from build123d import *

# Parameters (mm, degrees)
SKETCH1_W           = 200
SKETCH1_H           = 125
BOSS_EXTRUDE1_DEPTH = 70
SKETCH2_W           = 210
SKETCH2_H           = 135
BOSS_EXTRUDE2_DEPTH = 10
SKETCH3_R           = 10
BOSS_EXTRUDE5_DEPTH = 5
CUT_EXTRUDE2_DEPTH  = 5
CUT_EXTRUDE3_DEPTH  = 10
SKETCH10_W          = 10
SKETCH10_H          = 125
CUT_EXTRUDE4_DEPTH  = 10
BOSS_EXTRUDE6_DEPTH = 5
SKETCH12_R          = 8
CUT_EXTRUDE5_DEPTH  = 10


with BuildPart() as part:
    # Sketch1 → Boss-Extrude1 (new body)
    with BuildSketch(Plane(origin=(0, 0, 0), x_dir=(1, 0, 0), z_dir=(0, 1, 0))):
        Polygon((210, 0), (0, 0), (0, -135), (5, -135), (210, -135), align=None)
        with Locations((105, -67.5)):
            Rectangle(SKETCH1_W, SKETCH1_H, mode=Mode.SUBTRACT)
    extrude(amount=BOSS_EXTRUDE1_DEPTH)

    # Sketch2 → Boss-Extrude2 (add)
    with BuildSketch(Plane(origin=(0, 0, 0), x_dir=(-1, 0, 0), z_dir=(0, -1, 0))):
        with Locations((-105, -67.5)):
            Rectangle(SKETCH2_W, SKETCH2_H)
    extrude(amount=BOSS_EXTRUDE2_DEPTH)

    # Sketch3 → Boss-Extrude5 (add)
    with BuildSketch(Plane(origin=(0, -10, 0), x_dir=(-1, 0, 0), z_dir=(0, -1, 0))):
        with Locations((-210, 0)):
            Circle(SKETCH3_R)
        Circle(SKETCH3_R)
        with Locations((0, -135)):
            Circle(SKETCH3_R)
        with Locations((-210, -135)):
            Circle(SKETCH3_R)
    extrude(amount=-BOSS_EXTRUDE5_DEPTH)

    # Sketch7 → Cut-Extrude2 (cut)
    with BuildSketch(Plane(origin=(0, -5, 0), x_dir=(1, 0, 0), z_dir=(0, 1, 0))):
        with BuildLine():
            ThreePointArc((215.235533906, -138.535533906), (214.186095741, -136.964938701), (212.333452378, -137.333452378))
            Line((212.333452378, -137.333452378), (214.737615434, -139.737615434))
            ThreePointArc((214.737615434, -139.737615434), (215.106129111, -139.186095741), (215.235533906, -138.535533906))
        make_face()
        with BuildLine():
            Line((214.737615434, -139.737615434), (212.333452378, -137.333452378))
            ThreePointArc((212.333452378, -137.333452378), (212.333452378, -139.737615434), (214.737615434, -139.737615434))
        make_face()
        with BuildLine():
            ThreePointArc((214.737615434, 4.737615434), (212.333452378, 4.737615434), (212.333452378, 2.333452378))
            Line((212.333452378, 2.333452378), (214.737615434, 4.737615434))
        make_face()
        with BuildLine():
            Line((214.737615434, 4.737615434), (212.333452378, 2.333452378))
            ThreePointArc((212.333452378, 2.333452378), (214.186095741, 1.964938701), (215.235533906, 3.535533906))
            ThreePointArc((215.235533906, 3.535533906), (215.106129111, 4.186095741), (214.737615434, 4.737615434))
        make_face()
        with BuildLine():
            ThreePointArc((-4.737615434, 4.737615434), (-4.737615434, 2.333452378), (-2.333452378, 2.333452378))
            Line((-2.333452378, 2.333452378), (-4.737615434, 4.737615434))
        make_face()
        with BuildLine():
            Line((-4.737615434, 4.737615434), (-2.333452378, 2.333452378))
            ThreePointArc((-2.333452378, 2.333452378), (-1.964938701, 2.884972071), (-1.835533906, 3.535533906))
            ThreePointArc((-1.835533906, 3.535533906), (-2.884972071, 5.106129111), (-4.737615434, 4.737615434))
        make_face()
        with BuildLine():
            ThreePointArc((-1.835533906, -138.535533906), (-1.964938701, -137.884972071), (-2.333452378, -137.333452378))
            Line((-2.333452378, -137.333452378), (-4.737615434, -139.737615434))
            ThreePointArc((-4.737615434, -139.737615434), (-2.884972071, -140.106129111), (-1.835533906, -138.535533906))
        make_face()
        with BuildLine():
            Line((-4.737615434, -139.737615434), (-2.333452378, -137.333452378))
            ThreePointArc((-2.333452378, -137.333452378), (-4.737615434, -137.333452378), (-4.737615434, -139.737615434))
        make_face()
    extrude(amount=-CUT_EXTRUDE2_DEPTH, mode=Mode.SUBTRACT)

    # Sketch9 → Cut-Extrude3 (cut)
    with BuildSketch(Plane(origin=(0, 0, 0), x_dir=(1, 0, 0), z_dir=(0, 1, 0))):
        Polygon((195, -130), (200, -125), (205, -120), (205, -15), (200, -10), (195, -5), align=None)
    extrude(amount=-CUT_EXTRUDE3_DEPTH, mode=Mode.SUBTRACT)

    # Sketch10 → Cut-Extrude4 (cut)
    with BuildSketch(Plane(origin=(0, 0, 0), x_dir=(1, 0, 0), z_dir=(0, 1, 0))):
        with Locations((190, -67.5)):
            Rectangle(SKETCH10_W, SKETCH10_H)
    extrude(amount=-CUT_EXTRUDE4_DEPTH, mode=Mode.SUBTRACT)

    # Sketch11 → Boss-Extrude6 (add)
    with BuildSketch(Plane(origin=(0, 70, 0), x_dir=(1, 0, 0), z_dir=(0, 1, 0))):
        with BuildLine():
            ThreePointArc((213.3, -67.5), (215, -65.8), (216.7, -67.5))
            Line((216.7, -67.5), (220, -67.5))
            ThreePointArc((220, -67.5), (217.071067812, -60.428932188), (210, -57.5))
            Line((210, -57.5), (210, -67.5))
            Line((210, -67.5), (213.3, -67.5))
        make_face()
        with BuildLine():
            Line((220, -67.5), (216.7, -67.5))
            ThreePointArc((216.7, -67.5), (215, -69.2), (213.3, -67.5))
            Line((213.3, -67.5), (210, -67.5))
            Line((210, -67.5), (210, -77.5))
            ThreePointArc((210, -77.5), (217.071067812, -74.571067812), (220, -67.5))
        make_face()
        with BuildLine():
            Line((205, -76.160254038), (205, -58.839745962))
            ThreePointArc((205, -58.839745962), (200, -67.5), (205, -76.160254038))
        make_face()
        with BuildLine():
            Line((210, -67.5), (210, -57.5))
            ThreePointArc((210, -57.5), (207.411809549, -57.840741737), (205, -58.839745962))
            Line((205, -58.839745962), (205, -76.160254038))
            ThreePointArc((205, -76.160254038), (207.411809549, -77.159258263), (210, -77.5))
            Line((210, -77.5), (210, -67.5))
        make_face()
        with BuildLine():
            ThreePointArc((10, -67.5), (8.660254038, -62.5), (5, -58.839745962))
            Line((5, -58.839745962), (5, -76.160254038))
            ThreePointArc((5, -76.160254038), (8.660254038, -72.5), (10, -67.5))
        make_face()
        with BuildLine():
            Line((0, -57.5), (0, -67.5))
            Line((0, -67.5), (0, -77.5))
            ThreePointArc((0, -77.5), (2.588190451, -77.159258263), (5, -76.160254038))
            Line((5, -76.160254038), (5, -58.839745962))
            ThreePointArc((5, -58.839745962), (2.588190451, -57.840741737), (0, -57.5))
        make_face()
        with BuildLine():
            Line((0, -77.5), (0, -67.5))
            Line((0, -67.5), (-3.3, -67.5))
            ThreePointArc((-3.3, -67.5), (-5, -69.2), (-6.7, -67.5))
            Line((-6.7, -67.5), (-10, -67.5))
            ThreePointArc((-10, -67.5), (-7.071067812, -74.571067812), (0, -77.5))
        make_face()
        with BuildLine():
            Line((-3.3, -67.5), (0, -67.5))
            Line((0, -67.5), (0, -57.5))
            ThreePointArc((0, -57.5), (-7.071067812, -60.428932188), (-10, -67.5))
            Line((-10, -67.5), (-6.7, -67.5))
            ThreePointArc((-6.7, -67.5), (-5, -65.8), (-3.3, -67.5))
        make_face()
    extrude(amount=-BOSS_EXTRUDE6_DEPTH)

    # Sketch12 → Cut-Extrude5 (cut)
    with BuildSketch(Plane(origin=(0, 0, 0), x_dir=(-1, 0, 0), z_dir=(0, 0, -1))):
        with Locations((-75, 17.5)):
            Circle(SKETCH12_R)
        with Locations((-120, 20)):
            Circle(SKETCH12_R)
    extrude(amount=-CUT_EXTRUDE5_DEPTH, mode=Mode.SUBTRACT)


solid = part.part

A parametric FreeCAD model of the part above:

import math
import FreeCAD as App
import Part
import Sketcher
Q = App.Units.Quantity


def add_polygon(sketch, points):
    """Adds a closed chain of lines whose ends are joined by coincident constraints."""
    first, n = sketch.GeometryCount, len(points)
    for a, b in zip(points, points[1:] + points[:1]):
        sketch.addGeometry(Part.LineSegment(App.Vector(*a, 0), App.Vector(*b, 0)), False)
    for i in range(n):
        sketch.addConstraint(Sketcher.Constraint("Coincident", first + i, 2, first + (i + 1) % n, 1))

doc = App.newDocument("Part")
body = doc.addObject("PartDesign::Body", "Body")

# Sketch on XZ plane
sketch1 = doc.addObject("Sketcher::SketchObject", "Sketch")
body.addObject(sketch1)
sketch1.AttachmentSupport = (doc.XZ_Plane, [""])
sketch1.MapMode = "FlatFace"
add_polygon(sketch1, [(210, 0), (0, 0), (0, 135), (210, 135)])  # lines 0-3
add_polygon(sketch1, [(205, 130), (5, 130), (5, 5), (205, 5)])  # lines 4-7
sketch1.addConstraint(Sketcher.Constraint("Horizontal", 0))
sketch1.addConstraint(Sketcher.Constraint("Vertical", 1))
sketch1.addConstraint(Sketcher.Constraint("Horizontal", 2))
sketch1.addConstraint(Sketcher.Constraint("Vertical", 3))
sketch1.addConstraint(Sketcher.Constraint("Horizontal", 4))
sketch1.addConstraint(Sketcher.Constraint("Vertical", 5))
sketch1.addConstraint(Sketcher.Constraint("Horizontal", 6))
sketch1.addConstraint(Sketcher.Constraint("Vertical", 7))
sketch1.addConstraint(Sketcher.Constraint("Coincident", 0, 2, -1, 1))
sketch1.addConstraint(Sketcher.Constraint("DistanceX", 0, 2, 0, 1, Q("210 mm")))
sketch1.addConstraint(Sketcher.Constraint("DistanceX", 4, 2, 4, 1, Q("200 mm")))
sketch1.addConstraint(Sketcher.Constraint("DistanceY", 1, 1, 1, 2, Q("135 mm")))
sketch1.addConstraint(Sketcher.Constraint("DistanceY", 5, 2, 5, 1, Q("125 mm")))
sketch1.addConstraint(Sketcher.Constraint("DistanceX", -1, 1, 4, 2, Q("5 mm")))
sketch1.addConstraint(Sketcher.Constraint("DistanceY", -1, 1, 4, 2, Q("130 mm")))
pad1 = doc.addObject("PartDesign::Pad", "Pad")
body.addObject(pad1)
pad1.Profile = sketch1
pad1.Length = 70
pad1.Reversed = True

# Sketch on XZ plane
sketch2 = doc.addObject("Sketcher::SketchObject", "Sketch001")
body.addObject(sketch2)
sketch2.AttachmentSupport = (doc.XZ_Plane, [""])
sketch2.MapMode = "FlatFace"
add_polygon(sketch2, [(210, 0), (210, 135), (0, 135), (0, 0)])  # lines 0-3
sketch2.addConstraint(Sketcher.Constraint("Vertical", 0))
sketch2.addConstraint(Sketcher.Constraint("Horizontal", 1))
sketch2.addConstraint(Sketcher.Constraint("Vertical", 2))
sketch2.addConstraint(Sketcher.Constraint("Horizontal", 3))
sketch2.addConstraint(Sketcher.Constraint("Coincident", 2, 2, -1, 1))
sketch2.addConstraint(Sketcher.Constraint("DistanceX", 1, 2, 1, 1, Q("210 mm")))
sketch2.addConstraint(Sketcher.Constraint("DistanceY", 0, 1, 0, 2, Q("135 mm")))
pad2 = doc.addObject("PartDesign::Pad", "Pad001")
body.addObject(pad2)
pad2.Profile = sketch2
pad2.Length = 10

# Sketch on XZ plane
sketch3 = doc.addObject("Sketcher::SketchObject", "Sketch002")
body.addObject(sketch3)
sketch3.AttachmentSupport = (doc.XZ_Plane, [""])
sketch3.MapMode = "FlatFace"
sketch3.AttachmentOffset = App.Placement(App.Vector(0, 0, 10), App.Rotation())
sketch3.addGeometry(Part.Circle(App.Vector(210, 0, 0), App.Vector(0, 0, 1), 10), False)
sketch3.addGeometry(Part.Circle(App.Vector(0, 0, 0), App.Vector(0, 0, 1), 10), False)
sketch3.addGeometry(Part.Circle(App.Vector(0, 135, 0), App.Vector(0, 0, 1), 10), False)
sketch3.addGeometry(Part.Circle(App.Vector(210, 135, 0), App.Vector(0, 0, 1), 10), False)
sketch3.addConstraint(Sketcher.Constraint("Coincident", 1, 3, -1, 1))
sketch3.addConstraint(Sketcher.Constraint("Equal", 0, 1))
sketch3.addConstraint(Sketcher.Constraint("Equal", 1, 2))
sketch3.addConstraint(Sketcher.Constraint("Equal", 2, 3))
sketch3.addConstraint(Sketcher.Constraint("PointOnObject", 0, 3, -1))
sketch3.addConstraint(Sketcher.Constraint("PointOnObject", 2, 3, -2))
sketch3.addConstraint(Sketcher.Constraint("Horizontal", 2, 3, 3, 3))
sketch3.addConstraint(Sketcher.Constraint("Vertical", 0, 3, 3, 3))
sketch3.addConstraint(Sketcher.Constraint("Diameter", 0, Q("20 mm")))
sketch3.addConstraint(Sketcher.Constraint("DistanceX", -1, 1, 0, 3, Q("210 mm")))
sketch3.addConstraint(Sketcher.Constraint("DistanceY", -1, 1, 2, 3, Q("135 mm")))
pad3 = doc.addObject("PartDesign::Pad", "Pad002")
body.addObject(pad3)
pad3.Profile = sketch3
pad3.Length = 5
pad3.Reversed = True

# Sketch on XZ plane
sketch4 = doc.addObject("Sketcher::SketchObject", "Sketch003")
body.addObject(sketch4)
sketch4.AttachmentSupport = (doc.XZ_Plane, [""])
sketch4.MapMode = "FlatFace"
sketch4.AttachmentOffset = App.Placement(App.Vector(0, 0, 5), App.Rotation())
sketch4.addGeometry(Part.ArcOfCircle(Part.Circle(App.Vector(213.5, 138.5, 0), App.Vector(0, 0, 1), 1.7), math.radians(-135), math.radians(0)), False)
sketch4.addGeometry(Part.ArcOfCircle(Part.Circle(App.Vector(213.5, 138.5, 0), App.Vector(0, 0, 1), 1.7), math.radians(45), math.radians(225)), False)
sketch4.addGeometry(Part.ArcOfCircle(Part.Circle(App.Vector(213.5, 138.5, 0), App.Vector(0, 0, 1), 1.7), math.radians(0), math.radians(45)), False)
sketch4.addGeometry(Part.ArcOfCircle(Part.Circle(App.Vector(213.5, -3.5, 0), App.Vector(0, 0, 1), 1.7), math.radians(135), math.radians(315)), False)
sketch4.addGeometry(Part.ArcOfCircle(Part.Circle(App.Vector(213.5, -3.5, 0), App.Vector(0, 0, 1), 1.7), math.radians(0), math.radians(135)), False)
sketch4.addGeometry(Part.ArcOfCircle(Part.Circle(App.Vector(213.5, -3.5, 0), App.Vector(0, 0, 1), 1.7), math.radians(-45), math.radians(0)), False)
sketch4.addGeometry(Part.ArcOfCircle(Part.Circle(App.Vector(-3.5, -3.5, 0), App.Vector(0, 0, 1), 1.7), math.radians(45), math.radians(225)), False)
sketch4.addGeometry(Part.ArcOfCircle(Part.Circle(App.Vector(-3.5, -3.5, 0), App.Vector(0, 0, 1), 1.7), math.radians(0), math.radians(45)), False)
sketch4.addGeometry(Part.ArcOfCircle(Part.Circle(App.Vector(-3.5, -3.5, 0), App.Vector(0, 0, 1), 1.7), math.radians(-135), math.radians(0)), False)
sketch4.addGeometry(Part.ArcOfCircle(Part.Circle(App.Vector(-3.5, 138.5, 0), App.Vector(0, 0, 1), 1.7), math.radians(-45), math.radians(0)), False)
sketch4.addGeometry(Part.ArcOfCircle(Part.Circle(App.Vector(-3.5, 138.5, 0), App.Vector(0, 0, 1), 1.7), math.radians(135), math.radians(315)), False)
sketch4.addGeometry(Part.ArcOfCircle(Part.Circle(App.Vector(-3.5, 138.5, 0), App.Vector(0, 0, 1), 1.7), math.radians(0), math.radians(135)), False)
sketch4.addConstraint(Sketcher.Constraint("Tangent", 0, 1, 1, 2))
sketch4.addConstraint(Sketcher.Constraint("Tangent", 1, 1, 2, 2))
sketch4.addConstraint(Sketcher.Constraint("Tangent", 2, 1, 0, 2))
sketch4.addConstraint(Sketcher.Constraint("Tangent", 3, 1, 4, 2))
sketch4.addConstraint(Sketcher.Constraint("Tangent", 4, 1, 5, 2))
sketch4.addConstraint(Sketcher.Constraint("Tangent", 5, 1, 3, 2))
sketch4.addConstraint(Sketcher.Constraint("Tangent", 6, 1, 7, 2))
sketch4.addConstraint(Sketcher.Constraint("Tangent", 7, 1, 8, 2))
sketch4.addConstraint(Sketcher.Constraint("Tangent", 8, 1, 6, 2))
sketch4.addConstraint(Sketcher.Constraint("Tangent", 9, 1, 10, 2))
sketch4.addConstraint(Sketcher.Constraint("Tangent", 10, 1, 11, 2))
sketch4.addConstraint(Sketcher.Constraint("Tangent", 11, 1, 9, 2))
sketch4.addConstraint(Sketcher.Constraint("Equal", 2, 3))
sketch4.addConstraint(Sketcher.Constraint("Equal", 5, 6))
sketch4.addConstraint(Sketcher.Constraint("Equal", 8, 9))
sketch4.addConstraint(Sketcher.Constraint("Horizontal", 5, 3, 6, 3))
sketch4.addConstraint(Sketcher.Constraint("Horizontal", 2, 3, 9, 3))
sketch4.addConstraint(Sketcher.Constraint("Horizontal", 11, 3, 2, 1))
sketch4.addConstraint(Sketcher.Constraint("Horizontal", 8, 3, 4, 1))
sketch4.addConstraint(Sketcher.Constraint("Horizontal", 3, 1, 6, 1))
sketch4.addConstraint(Sketcher.Constraint("Horizontal", 4, 1, 7, 1))
sketch4.addConstraint(Sketcher.Constraint("Horizontal", 5, 1, 8, 1))
sketch4.addConstraint(Sketcher.Constraint("Horizontal", 0, 1, 9, 1))
sketch4.addConstraint(Sketcher.Constraint("Horizontal", 1, 1, 10, 1))
sketch4.addConstraint(Sketcher.Constraint("Horizontal", 2, 1, 11, 1))
sketch4.addConstraint(Sketcher.Constraint("Vertical", 2, 3, 3, 3))
sketch4.addConstraint(Sketcher.Constraint("Vertical", 8, 3, 9, 3))
sketch4.addConstraint(Sketcher.Constraint("Vertical", 0, 1, 3, 1))
sketch4.addConstraint(Sketcher.Constraint("Vertical", 1, 1, 5, 1))
sketch4.addConstraint(Sketcher.Constraint("Radius", 0, Q("1.7 mm")))
sketch4.addConstraint(Sketcher.Constraint("DistanceX", 0, 1, 2, 3, Q("1.202082 mm")))
sketch4.addConstraint(Sketcher.Constraint("DistanceX", 0, 3, 1, 1, Q("1.202082 mm")))
sketch4.addConstraint(Sketcher.Constraint("DistanceY", 5, 3, 1, 1, Q("143.273149 mm")))
sketch4.addConstraint(Sketcher.Constraint("DistanceX", -1, 1, 0, 3, Q("213.535534 mm")))
sketch4.addConstraint(Sketcher.Constraint("DistanceY", -1, 1, 0, 3, Q("138.535534 mm")))
sketch4.addConstraint(Sketcher.Constraint("DistanceX", 6, 3, -1, 1, Q("3.535534 mm")))
pocket1 = doc.addObject("PartDesign::Pocket", "Pocket")
body.addObject(pocket1)
pocket1.Profile = sketch4
pocket1.Length = 5
pocket1.Reversed = True

# Sketch on XZ plane
sketch5 = doc.addObject("Sketcher::SketchObject", "Sketch004")
body.addObject(sketch5)
sketch5.AttachmentSupport = (doc.XZ_Plane, [""])
sketch5.MapMode = "FlatFace"
add_polygon(sketch5, [(195, 130), (205, 120), (205, 15), (195, 5)])  # lines 0-3
sketch5.addConstraint(Sketcher.Constraint("Vertical", 1))
sketch5.addConstraint(Sketcher.Constraint("Vertical", 3))
sketch5.addConstraint(Sketcher.Constraint("Perpendicular", 0, 2))
sketch5.addConstraint(Sketcher.Constraint("Equal", 0, 2))
sketch5.addConstraint(Sketcher.Constraint("DistanceY", 1, 2, 1, 1, Q("105 mm")))
sketch5.addConstraint(Sketcher.Constraint("DistanceY", 3, 1, 3, 2, Q("125 mm")))
sketch5.addConstraint(Sketcher.Constraint("DistanceX", -1, 1, 0, 2, Q("205 mm")))
sketch5.addConstraint(Sketcher.Constraint("DistanceY", -1, 1, 0, 2, Q("120 mm")))
pocket2 = doc.addObject("PartDesign::Pocket", "Pocket001")
body.addObject(pocket2)
pocket2.Profile = sketch5
pocket2.Length = 10
pocket2.Reversed = True

# Sketch on XZ plane
sketch6 = doc.addObject("Sketcher::SketchObject", "Sketch005")
body.addObject(sketch6)
sketch6.AttachmentSupport = (doc.XZ_Plane, [""])
sketch6.MapMode = "FlatFace"
add_polygon(sketch6, [(185, 5), (185, 130), (195, 130), (195, 5)])  # lines 0-3
sketch6.addConstraint(Sketcher.Constraint("Vertical", 0))
sketch6.addConstraint(Sketcher.Constraint("Horizontal", 1))
sketch6.addConstraint(Sketcher.Constraint("Vertical", 2))
sketch6.addConstraint(Sketcher.Constraint("Horizontal", 3))
sketch6.addConstraint(Sketcher.Constraint("DistanceX", 1, 1, 1, 2, Q("10 mm")))
sketch6.addConstraint(Sketcher.Constraint("DistanceY", 0, 1, 0, 2, Q("125 mm")))
sketch6.addConstraint(Sketcher.Constraint("DistanceX", -1, 1, 0, 2, Q("185 mm")))
sketch6.addConstraint(Sketcher.Constraint("DistanceY", -1, 1, 0, 2, Q("130 mm")))
pocket3 = doc.addObject("PartDesign::Pocket", "Pocket002")
body.addObject(pocket3)
pocket3.Profile = sketch6
pocket3.Length = 10
pocket3.Reversed = True

# Sketch on XZ plane
sketch7 = doc.addObject("Sketcher::SketchObject", "Sketch006")
body.addObject(sketch7)
sketch7.AttachmentSupport = (doc.XZ_Plane, [""])
sketch7.MapMode = "FlatFace"
sketch7.AttachmentOffset = App.Placement(App.Vector(0, 0, -70), App.Rotation())
sketch7.addGeometry(Part.ArcOfCircle(Part.Circle(App.Vector(210, 67.5, 0), App.Vector(0, 0, 1), 10), math.radians(0), math.radians(90)), False)
sketch7.addGeometry(Part.ArcOfCircle(Part.Circle(App.Vector(210, 67.5, 0), App.Vector(0, 0, 1), 10), math.radians(-90), math.radians(0)), False)
sketch7.addGeometry(Part.ArcOfCircle(Part.Circle(App.Vector(210, 67.5, 0), App.Vector(0, 0, 1), 10), math.radians(-120), math.radians(-90)), False)
sketch7.addGeometry(Part.ArcOfCircle(Part.Circle(App.Vector(210, 67.5, 0), App.Vector(0, 0, 1), 10), math.radians(120), math.radians(240)), False)
sketch7.addGeometry(Part.ArcOfCircle(Part.Circle(App.Vector(210, 67.5, 0), App.Vector(0, 0, 1), 10), math.radians(90), math.radians(120)), False)
sketch7.addGeometry(Part.Circle(App.Vector(215, 67.5, 0), App.Vector(0, 0, 1), 1.7), False)
sketch7.addGeometry(Part.ArcOfCircle(Part.Circle(App.Vector(0, 67.5, 0), App.Vector(0, 0, 1), 10), math.radians(60), math.radians(90)), False)
sketch7.addGeometry(Part.ArcOfCircle(Part.Circle(App.Vector(0, 67.5, 0), App.Vector(0, 0, 1), 10), math.radians(0), math.radians(60)), False)
sketch7.addGeometry(Part.ArcOfCircle(Part.Circle(App.Vector(0, 67.5, 0), App.Vector(0, 0, 1), 10), math.radians(-60), math.radians(0)), False)
sketch7.addGeometry(Part.ArcOfCircle(Part.Circle(App.Vector(0, 67.5, 0), App.Vector(0, 0, 1), 10), math.radians(-90), math.radians(-60)), False)
sketch7.addGeometry(Part.ArcOfCircle(Part.Circle(App.Vector(0, 67.5, 0), App.Vector(0, 0, 1), 10), math.radians(180), math.radians(270)), False)
sketch7.addGeometry(Part.ArcOfCircle(Part.Circle(App.Vector(0, 67.5, 0), App.Vector(0, 0, 1), 10), math.radians(90), math.radians(180)), False)
sketch7.addGeometry(Part.Circle(App.Vector(-5, 67.5, 0), App.Vector(0, 0, 1), 1.7), False)
sketch7.addConstraint(Sketcher.Constraint("Tangent", 0, 1, 1, 2))
sketch7.addConstraint(Sketcher.Constraint("Tangent", 1, 1, 2, 2))
sketch7.addConstraint(Sketcher.Constraint("Tangent", 2, 1, 3, 2))
sketch7.addConstraint(Sketcher.Constraint("Tangent", 3, 1, 4, 2))
sketch7.addConstraint(Sketcher.Constraint("Tangent", 4, 1, 0, 2))
sketch7.addConstraint(Sketcher.Constraint("Tangent", 6, 1, 7, 2))
sketch7.addConstraint(Sketcher.Constraint("Tangent", 7, 1, 8, 2))
sketch7.addConstraint(Sketcher.Constraint("Tangent", 8, 1, 9, 2))
sketch7.addConstraint(Sketcher.Constraint("Tangent", 9, 1, 10, 2))
sketch7.addConstraint(Sketcher.Constraint("Tangent", 10, 1, 11, 2))
sketch7.addConstraint(Sketcher.Constraint("Tangent", 11, 1, 6, 2))
sketch7.addConstraint(Sketcher.Constraint("Coincident", 2, 3, 0, 3))
sketch7.addConstraint(Sketcher.Constraint("Coincident", 8, 3, 6, 3))
sketch7.addConstraint(Sketcher.Constraint("Equal", 4, 6))
sketch7.addConstraint(Sketcher.Constraint("Equal", 8, 9))
sketch7.addConstraint(Sketcher.Constraint("Equal", 5, 12))
sketch7.addConstraint(Sketcher.Constraint("Symmetric", 7, 1, 10, 1, -2))
sketch7.addConstraint(Sketcher.Constraint("PointOnObject", 9, 1, -2))
sketch7.addConstraint(Sketcher.Constraint("PointOnObject", 11, 1, -2))
sketch7.addConstraint(Sketcher.Constraint("Horizontal", 4, 3, 5, 3))
sketch7.addConstraint(Sketcher.Constraint("Horizontal", 5, 3, 6, 3))
sketch7.addConstraint(Sketcher.Constraint("Horizontal", 11, 3, 12, 3))
sketch7.addConstraint(Sketcher.Constraint("Horizontal", 12, 3, 0, 1))
sketch7.addConstraint(Sketcher.Constraint("Horizontal", 3, 1, 6, 1))
sketch7.addConstraint(Sketcher.Constraint("Horizontal", 0, 1, 7, 1))
sketch7.addConstraint(Sketcher.Constraint("Horizontal", 2, 1, 8, 1))
sketch7.addConstraint(Sketcher.Constraint("Vertical", 4, 3, 1, 1))
sketch7.addConstraint(Sketcher.Constraint("Vertical", 2, 1, 3, 1))
sketch7.addConstraint(Sketcher.Constraint("Vertical", 1, 1, 4, 1))
sketch7.addConstraint(Sketcher.Constraint("Radius", 0, Q("10 mm")))
sketch7.addConstraint(Sketcher.Constraint("Diameter", 5, Q("3.4 mm")))
sketch7.addConstraint(Sketcher.Constraint("DistanceX", -1, 1, 0, 3, Q("210 mm")))
sketch7.addConstraint(Sketcher.Constraint("DistanceX", -1, 1, 5, 3, Q("215 mm")))
sketch7.addConstraint(Sketcher.Constraint("DistanceX", 12, 3, -1, 1, Q("5 mm")))
sketch7.addConstraint(Sketcher.Constraint("DistanceX", -1, 1, 2, 1, Q("205 mm")))
sketch7.addConstraint(Sketcher.Constraint("DistanceY", -1, 1, 0, 3, Q("67.5 mm")))
pad4 = doc.addObject("PartDesign::Pad", "Pad003")
body.addObject(pad4)
pad4.Profile = sketch7
pad4.Length = 5

# Sketch on XY plane
sketch8 = doc.addObject("Sketcher::SketchObject", "Sketch007")
body.addObject(sketch8)
sketch8.AttachmentSupport = (doc.XY_Plane, [""])
sketch8.MapMode = "FlatFace"
sketch8.addGeometry(Part.Circle(App.Vector(75, 18, 0), App.Vector(0, 0, 1), 8), False)
sketch8.addGeometry(Part.Circle(App.Vector(120, 20, 0), App.Vector(0, 0, 1), 8), False)
sketch8.addConstraint(Sketcher.Constraint("Equal", 0, 1))
sketch8.addConstraint(Sketcher.Constraint("Diameter", 0, Q("16 mm")))
sketch8.addConstraint(Sketcher.Constraint("DistanceX", -1, 1, 0, 3, Q("75 mm")))
sketch8.addConstraint(Sketcher.Constraint("DistanceX", -1, 1, 1, 3, Q("120 mm")))
sketch8.addConstraint(Sketcher.Constraint("DistanceY", -1, 1, 1, 3, Q("20 mm")))
sketch8.addConstraint(Sketcher.Constraint("DistanceY", -1, 1, 0, 3, Q("17.5 mm")))
pocket4 = doc.addObject("PartDesign::Pocket", "Pocket003")
body.addObject(pocket4)
pocket4.Profile = sketch8
pocket4.Length = 10
pocket4.Reversed = True

doc.recompute()
